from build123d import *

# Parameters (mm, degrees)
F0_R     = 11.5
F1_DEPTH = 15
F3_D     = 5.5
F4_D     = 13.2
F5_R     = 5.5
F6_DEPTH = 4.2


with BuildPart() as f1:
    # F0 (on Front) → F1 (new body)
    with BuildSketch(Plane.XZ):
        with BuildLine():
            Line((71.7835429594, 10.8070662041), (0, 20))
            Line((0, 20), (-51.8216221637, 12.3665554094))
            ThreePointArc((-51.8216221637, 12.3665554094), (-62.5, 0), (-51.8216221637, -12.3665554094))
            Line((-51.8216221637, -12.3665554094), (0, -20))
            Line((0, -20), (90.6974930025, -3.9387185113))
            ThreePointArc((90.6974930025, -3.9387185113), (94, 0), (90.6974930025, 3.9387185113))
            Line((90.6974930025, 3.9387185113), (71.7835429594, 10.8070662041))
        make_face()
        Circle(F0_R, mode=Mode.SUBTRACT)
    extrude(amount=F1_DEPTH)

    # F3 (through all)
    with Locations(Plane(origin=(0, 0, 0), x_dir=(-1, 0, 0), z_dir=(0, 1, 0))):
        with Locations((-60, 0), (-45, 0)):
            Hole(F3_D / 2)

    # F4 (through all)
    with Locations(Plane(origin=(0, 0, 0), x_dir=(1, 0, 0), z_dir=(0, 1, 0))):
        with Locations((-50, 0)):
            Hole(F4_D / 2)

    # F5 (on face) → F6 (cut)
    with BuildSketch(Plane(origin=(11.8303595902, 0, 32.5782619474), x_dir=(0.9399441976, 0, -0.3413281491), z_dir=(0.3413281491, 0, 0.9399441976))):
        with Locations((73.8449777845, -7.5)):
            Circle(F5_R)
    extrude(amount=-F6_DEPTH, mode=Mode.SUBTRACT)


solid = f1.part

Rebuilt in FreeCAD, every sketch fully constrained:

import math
import FreeCAD as App
import Part
import Sketcher

doc = App.newDocument("Part")
body = doc.addObject("PartDesign::Body", "Body")

sketch1 = body.newObject("Sketcher::SketchObject", "Sketch")
sketch1.AttachmentSupport = (doc.getObject("XZ_Plane"), [""])
sketch1.MapMode = "FlatFace"
sketch1.addGeometry(Part.LineSegment(App.Vector(71.8, 10.8, 0), App.Vector(0, 20, 0)), False)
sketch1.addGeometry(Part.LineSegment(App.Vector(0, 20, 0), App.Vector(-51.8, 12.4, 0)), False)
sketch1.addGeometry(Part.ArcOfCircle(Part.Circle(App.Vector(-50, 0, 0), App.Vector(0, 0, 1), 12.5), math.radians(98), math.radians(262)), False)
sketch1.addGeometry(Part.LineSegment(App.Vector(-51.8, -12.4, 0), App.Vector(0, -20, 0)), False)
sketch1.addGeometry(Part.LineSegment(App.Vector(0, -20, 0), App.Vector(90.7, -3.9, 0)), False)
sketch1.addGeometry(Part.ArcOfCircle(Part.Circle(App.Vector(90, 0, 0), App.Vector(0, 0, 1), 4), math.radians(-80), math.radians(80)), False)
sketch1.addGeometry(Part.LineSegment(App.Vector(90.7, 3.9, 0), App.Vector(71.8, 10.8, 0)), False)
sketch1.addGeometry(Part.Circle(App.Vector(0, 0, 0), App.Vector(0, 0, 1), 11.5), False)
sketch1.addConstraint(Sketcher.Constraint("Coincident", 0, 2, 1, 1))
sketch1.addConstraint(Sketcher.Constraint("Tangent", 1, 2, 2, 1))
sketch1.addConstraint(Sketcher.Constraint("Tangent", 2, 2, 3, 1))
sketch1.addConstraint(Sketcher.Constraint("Coincident", 3, 2, 4, 1))
sketch1.addConstraint(Sketcher.Constraint("Tangent", 4, 2, 5, 1))
sketch1.addConstraint(Sketcher.Constraint("Coincident", 5, 2, 6, 1))
sketch1.addConstraint(Sketcher.Constraint("Coincident", 6, 2, 0, 1))
sketch1.addConstraint(Sketcher.Constraint("Coincident", 7, 3, -1, 1))
sketch1.addConstraint(Sketcher.Constraint("Symmetric", 0, 2, 3, 2, -1, 1))
sketch1.addConstraint(Sketcher.Constraint("Symmetric", 1, 2, 2, 2, -1))
sketch1.addConstraint(Sketcher.Constraint("Symmetric", 4, 2, 5, 2, -1))
sketch1.addConstraint(Sketcher.Constraint("Diameter", 7, 23.0))
sketch1.addConstraint(Sketcher.Constraint("Radius", 5, 4.0))
sketch1.addConstraint(Sketcher.Constraint("Radius", 2, 12.5))
sketch1.addConstraint(Sketcher.Constraint("DistanceX", 2, 3, -1, 1, 50.0))
sketch1.addConstraint(Sketcher.Constraint("DistanceX", -1, 1, 5, 3, 90.0))
sketch1.addConstraint(Sketcher.Constraint("DistanceY", -1, 1, 0, 2, 20.0))
sketch1.addConstraint(Sketcher.Constraint("Distance", 6, 20.122418))
sketch1.addConstraint(Sketcher.Constraint("DistanceX", 6, 2, 5, 2, 18.91395))
pad1 = body.newObject("PartDesign::Pad", "Pad")
pad1.Profile = sketch1
pad1.Length = 15

sketch2 = body.newObject("Sketcher::SketchObject", "Sketch001")
sketch2.AttachmentSupport = (doc.getObject("XZ_Plane"), [""])
sketch2.MapMode = "FlatFace"
sketch2.addGeometry(Part.Circle(App.Vector(60, 0, 0), App.Vector(0, 0, 1), 2.8), False)
sketch2.addGeometry(Part.Circle(App.Vector(45, 0, 0), App.Vector(0, 0, 1), 2.8), False)
sketch2.addConstraint(Sketcher.Constraint("Equal", 0, 1))
sketch2.addConstraint(Sketcher.Constraint("PointOnObject", 0, 3, -1))
sketch2.addConstraint(Sketcher.Constraint("PointOnObject", 1, 3, -1))
sketch2.addConstraint(Sketcher.Constraint("Diameter", 0, 5.5))
sketch2.addConstraint(Sketcher.Constraint("DistanceX", -1, 1, 0, 3, 60.0))
sketch2.addConstraint(Sketcher.Constraint("DistanceX", -1, 1, 1, 3, 45.0))
doc.recompute()
hole = body.newObject("PartDesign::Hole", "Hole")
hole.Profile = sketch2
hole.ThreadType = "None"
hole.Diameter = 5.5
hole.DepthType = "ThroughAll"
hole.Reversed = True

sketch3 = body.newObject("Sketcher::SketchObject", "Sketch002")
sketch3.AttachmentSupport = (doc.getObject("XZ_Plane"), [""])
sketch3.MapMode = "FlatFace"
sketch3.addGeometry(Part.Circle(App.Vector(-50, 0, 0), App.Vector(0, 0, 1), 7), False)
sketch3.addConstraint(Sketcher.Constraint("PointOnObject", 0, 3, -1))
sketch3.addConstraint(Sketcher.Constraint("Diameter", 0, 13.2))
sketch3.addConstraint(Sketcher.Constraint("DistanceX", 0, 3, -1, 1, 50.0))
doc.recompute()
hole2 = body.newObject("PartDesign::Hole", "Hole001")
hole2.Profile = sketch3
hole2.ThreadType = "None"
hole2.Diameter = 13.2
hole2.DepthType = "ThroughAll"
hole2.Reversed = True

sketch4 = body.newObject("Sketcher::SketchObject", "Sketch003")
sketch4.Placement = App.Placement(App.Vector(11.83036, 0, 32.578262), App.Rotation(App.Vector(0.939944198, 0, -0.341328149), App.Vector(0, 1.000000001, 0), App.Vector(0.341328149, 0, 0.939944198), "ZXY"))
sketch4.addGeometry(Part.Circle(App.Vector(74, -8, 0), App.Vector(0, 0, 1), 6), False)
sketch4.addConstraint(Sketcher.Constraint("Diameter", 0, 11.0))
sketch4.addConstraint(Sketcher.Constraint("DistanceY", 0, 3, -1, 1, 7.5))
sketch4.addConstraint(Sketcher.Constraint("DistanceX", -1, 1, 0, 3, 73.844978))
pocket1 = body.newObject("PartDesign::Pocket", "Pocket")
pocket1.Profile = sketch4
pocket1.Length = 4.2

doc.recompute()
